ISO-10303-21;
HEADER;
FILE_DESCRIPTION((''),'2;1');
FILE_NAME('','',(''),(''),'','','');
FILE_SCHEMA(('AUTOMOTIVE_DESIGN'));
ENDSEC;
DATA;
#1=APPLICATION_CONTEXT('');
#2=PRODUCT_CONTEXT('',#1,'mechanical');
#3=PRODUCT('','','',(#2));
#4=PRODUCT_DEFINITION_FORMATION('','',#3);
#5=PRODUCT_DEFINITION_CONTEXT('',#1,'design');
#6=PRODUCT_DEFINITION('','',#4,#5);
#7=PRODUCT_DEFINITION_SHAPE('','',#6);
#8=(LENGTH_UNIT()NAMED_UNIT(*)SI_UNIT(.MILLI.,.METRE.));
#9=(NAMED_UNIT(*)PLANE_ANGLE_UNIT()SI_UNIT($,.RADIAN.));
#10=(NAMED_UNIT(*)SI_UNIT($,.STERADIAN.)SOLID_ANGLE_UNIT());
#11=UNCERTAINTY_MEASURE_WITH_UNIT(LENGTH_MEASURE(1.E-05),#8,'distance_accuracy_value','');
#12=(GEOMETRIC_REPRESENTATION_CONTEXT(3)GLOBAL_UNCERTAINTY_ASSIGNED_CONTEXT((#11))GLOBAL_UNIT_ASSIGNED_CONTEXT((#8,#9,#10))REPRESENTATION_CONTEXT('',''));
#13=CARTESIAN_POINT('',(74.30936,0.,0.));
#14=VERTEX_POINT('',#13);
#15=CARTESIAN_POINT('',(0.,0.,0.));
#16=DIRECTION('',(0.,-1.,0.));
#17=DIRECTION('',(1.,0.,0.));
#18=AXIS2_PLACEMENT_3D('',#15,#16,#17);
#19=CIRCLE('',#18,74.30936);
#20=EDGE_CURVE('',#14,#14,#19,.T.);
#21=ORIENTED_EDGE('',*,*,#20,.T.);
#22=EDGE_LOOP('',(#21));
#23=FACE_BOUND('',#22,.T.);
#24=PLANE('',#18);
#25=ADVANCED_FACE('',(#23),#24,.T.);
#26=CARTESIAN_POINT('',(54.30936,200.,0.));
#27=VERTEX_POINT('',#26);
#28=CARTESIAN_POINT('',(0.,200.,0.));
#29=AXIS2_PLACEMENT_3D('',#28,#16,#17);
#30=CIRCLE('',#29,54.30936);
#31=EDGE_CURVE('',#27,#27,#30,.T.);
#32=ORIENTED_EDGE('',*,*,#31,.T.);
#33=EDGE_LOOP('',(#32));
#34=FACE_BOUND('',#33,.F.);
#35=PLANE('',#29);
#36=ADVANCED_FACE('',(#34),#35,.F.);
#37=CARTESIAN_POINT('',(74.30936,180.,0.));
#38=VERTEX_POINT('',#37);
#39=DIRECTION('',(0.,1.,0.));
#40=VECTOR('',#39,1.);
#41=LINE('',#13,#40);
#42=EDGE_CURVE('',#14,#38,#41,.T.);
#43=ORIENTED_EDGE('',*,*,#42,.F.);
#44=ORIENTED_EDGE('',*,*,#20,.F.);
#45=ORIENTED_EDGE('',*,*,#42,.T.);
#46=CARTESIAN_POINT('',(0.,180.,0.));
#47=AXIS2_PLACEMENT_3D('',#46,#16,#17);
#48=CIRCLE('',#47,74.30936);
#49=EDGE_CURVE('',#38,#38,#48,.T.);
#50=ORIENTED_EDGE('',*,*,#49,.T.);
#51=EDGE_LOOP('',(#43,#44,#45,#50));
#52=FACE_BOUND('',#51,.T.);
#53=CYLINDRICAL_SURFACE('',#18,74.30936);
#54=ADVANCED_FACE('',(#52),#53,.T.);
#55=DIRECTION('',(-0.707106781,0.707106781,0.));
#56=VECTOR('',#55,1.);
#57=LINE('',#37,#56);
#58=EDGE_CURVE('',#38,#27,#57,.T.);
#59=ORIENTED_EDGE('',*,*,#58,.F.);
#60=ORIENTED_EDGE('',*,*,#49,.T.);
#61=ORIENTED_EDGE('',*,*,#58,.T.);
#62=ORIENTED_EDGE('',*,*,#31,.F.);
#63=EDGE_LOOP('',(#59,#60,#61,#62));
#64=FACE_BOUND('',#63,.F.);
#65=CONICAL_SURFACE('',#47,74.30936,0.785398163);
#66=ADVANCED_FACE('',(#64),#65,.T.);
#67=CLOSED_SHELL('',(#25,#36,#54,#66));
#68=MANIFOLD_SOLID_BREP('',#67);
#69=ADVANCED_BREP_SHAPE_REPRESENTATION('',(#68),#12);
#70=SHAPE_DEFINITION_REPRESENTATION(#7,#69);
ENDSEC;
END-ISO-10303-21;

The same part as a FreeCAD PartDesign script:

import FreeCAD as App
import Part
import Sketcher
Q = App.Units.Quantity


def edges_at(feature, points):
    """Names of the edges that pass closest to the given points."""
    edges = feature.Shape.Edges
    near = lambda p: min(range(len(edges)), key=lambda i: edges[i].distToShape(Part.Vertex(*p))[0])
    return sorted({f"Edge{near(p) + 1}" for p in points})

doc = App.newDocument("Part")
params = doc.addObject("Spreadsheet::Sheet", "Params")
for row, (alias, value) in enumerate([
    ("pad1_length", "200 mm"),
    ("chamfer_size", "20 mm"),
], start=1):
    params.set(f"A{row}", alias)
    params.set(f"B{row}", "=" + value)
    params.setAlias(f"B{row}", alias)

body = doc.addObject("PartDesign::Body", "Body")

# Sketch on XZ plane
sketch1 = body.newObject("Sketcher::SketchObject", "Sketch")
sketch1.AttachmentSupport = (doc.getObject("XZ_Plane"), [""])
sketch1.MapMode = "FlatFace"
sketch1.addGeometry(Part.Circle(App.Vector(0, 0, 0), App.Vector(0, 0, 1), 74), False)
sketch1.addConstraint([
    Sketcher.Constraint("Coincident", 0, 3, -1, 1),
    Sketcher.Constraint("Diameter", 0, Q("148.61872 mm")),
])
pad1 = body.newObject("PartDesign::Pad", "Pad")
pad1.Profile = sketch1
pad1.setExpression("Length", "Params.pad1_length")
pad1.Reversed = True
doc.recompute()

chamfer = body.newObject("PartDesign::Chamfer", "Chamfer")
chamfer.Base = (pad1, edges_at(pad1, [(-74.309, 200, 0)]))
chamfer.setExpression("Size", "Params.chamfer_size")

doc.recompute()
